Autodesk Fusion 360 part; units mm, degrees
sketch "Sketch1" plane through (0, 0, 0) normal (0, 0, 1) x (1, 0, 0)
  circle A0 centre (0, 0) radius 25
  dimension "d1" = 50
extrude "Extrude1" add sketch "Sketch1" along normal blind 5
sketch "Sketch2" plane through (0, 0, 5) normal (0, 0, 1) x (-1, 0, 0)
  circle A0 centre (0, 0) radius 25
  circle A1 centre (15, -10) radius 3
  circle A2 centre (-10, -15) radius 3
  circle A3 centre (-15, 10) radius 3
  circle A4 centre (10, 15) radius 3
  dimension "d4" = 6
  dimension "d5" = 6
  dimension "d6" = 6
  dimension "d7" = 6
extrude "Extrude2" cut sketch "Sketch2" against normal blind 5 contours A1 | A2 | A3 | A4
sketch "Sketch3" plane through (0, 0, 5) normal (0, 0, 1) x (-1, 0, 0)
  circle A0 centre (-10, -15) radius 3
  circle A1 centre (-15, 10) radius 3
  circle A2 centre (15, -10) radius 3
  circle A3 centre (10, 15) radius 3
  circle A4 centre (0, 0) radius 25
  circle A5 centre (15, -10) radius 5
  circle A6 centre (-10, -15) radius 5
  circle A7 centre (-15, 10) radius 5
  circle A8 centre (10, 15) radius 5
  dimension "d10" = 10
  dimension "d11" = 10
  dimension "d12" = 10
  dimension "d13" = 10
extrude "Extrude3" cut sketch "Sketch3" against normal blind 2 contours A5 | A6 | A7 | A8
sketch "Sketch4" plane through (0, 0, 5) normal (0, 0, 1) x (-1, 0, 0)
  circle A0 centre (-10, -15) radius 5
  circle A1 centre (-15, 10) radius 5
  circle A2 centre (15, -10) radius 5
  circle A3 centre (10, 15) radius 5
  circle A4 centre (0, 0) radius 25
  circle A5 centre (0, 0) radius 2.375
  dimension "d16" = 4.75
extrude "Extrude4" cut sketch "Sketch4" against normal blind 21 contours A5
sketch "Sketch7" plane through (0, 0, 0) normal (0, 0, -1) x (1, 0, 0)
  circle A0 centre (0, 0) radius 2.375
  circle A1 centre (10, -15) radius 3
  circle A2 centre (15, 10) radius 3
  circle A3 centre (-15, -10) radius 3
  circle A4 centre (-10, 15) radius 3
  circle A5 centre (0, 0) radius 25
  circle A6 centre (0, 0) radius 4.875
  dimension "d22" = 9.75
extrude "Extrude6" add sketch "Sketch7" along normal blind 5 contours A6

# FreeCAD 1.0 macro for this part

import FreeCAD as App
import Part
import Sketcher

V = App.Vector
Q = App.Units.Quantity

doc = App.newDocument("Part")
body = doc.addObject("PartDesign::Body", "Body")

# Sketch on XY plane
sketch1 = doc.addObject("Sketcher::SketchObject", "Sketch")
body.addObject(sketch1)
sketch1.AttachmentSupport = (doc.XY_Plane, [""])
sketch1.MapMode = "FlatFace"
sketch1.addGeometry(Part.Circle(V(0, 0, 0), V(0, 0, 1), 25), False)
sketch1.addConstraint([
    Sketcher.Constraint("Coincident", 0, 3, -1, 1),
    Sketcher.Constraint("Diameter", 0, Q("50 mm")),
])
pad1 = doc.addObject("PartDesign::Pad", "Pad")
body.addObject(pad1)
pad1.Profile = sketch1
pad1.Length = 5

# Sketch on XY plane
sketch2 = doc.addObject("Sketcher::SketchObject", "Sketch001")
body.addObject(sketch2)
sketch2.AttachmentSupport = (doc.XY_Plane, [""])
sketch2.MapMode = "FlatFace"
sketch2.AttachmentOffset = App.Placement(V(0, 0, 5), App.Rotation())
sketch2.addGeometry([
    Part.Circle(V(-15, 10, 0), V(0, 0, 1), 3),
    Part.Circle(V(10, 15, 0), V(0, 0, 1), 3),
    Part.Circle(V(15, -10, 0), V(0, 0, 1), 3),
    Part.Circle(V(-10, -15, 0), V(0, 0, 1), 3),
], False)
sketch2.addConstraint([
    Sketcher.Constraint("Equal", 0, 1),
    Sketcher.Constraint("Equal", 1, 2),
    Sketcher.Constraint("Equal", 2, 3),
    Sketcher.Constraint("Symmetric", 0, 3, 2, 3, -1, 1),
    Sketcher.Constraint("Symmetric", 1, 3, 3, 3, -1, 1),
    Sketcher.Constraint("Diameter", 0, Q("6 mm")),
    Sketcher.Constraint("DistanceX", 0, 3, -1, 1, Q("15 mm")),
    Sketcher.Constraint("DistanceY", -1, 1, 0, 3, Q("10 mm")),
    Sketcher.Constraint("DistanceX", -1, 1, 1, 3, Q("10 mm")),
    Sketcher.Constraint("DistanceY", -1, 1, 1, 3, Q("15 mm")),
])
pocket1 = doc.addObject("PartDesign::Pocket", "Pocket")
body.addObject(pocket1)
pocket1.Profile = sketch2
pocket1.Length = 5

# Sketch on XY plane
sketch3 = doc.addObject("Sketcher::SketchObject", "Sketch002")
body.addObject(sketch3)
sketch3.AttachmentSupport = (doc.XY_Plane, [""])
sketch3.MapMode = "FlatFace"
sketch3.AttachmentOffset = App.Placement(V(0, 0, 5), App.Rotation())
sketch3.addGeometry([
    Part.Circle(V(-15, 10, 0), V(0, 0, 1), 5),  # 0
    Part.Circle(V(-15, 10, 0), V(0, 0, 1), 3),  # 1
    Part.Circle(V(10, 15, 0), V(0, 0, 1), 5),  # 2
    Part.Circle(V(10, 15, 0), V(0, 0, 1), 3),  # 3
    Part.Circle(V(15, -10, 0), V(0, 0, 1), 5),  # 4
    Part.Circle(V(15, -10, 0), V(0, 0, 1), 3),  # 5
    Part.Circle(V(-10, -15, 0), V(0, 0, 1), 5),  # 6
    Part.Circle(V(-10, -15, 0), V(0, 0, 1), 3),  # 7
], False)
sketch3.addConstraint([
    Sketcher.Constraint("Coincident", 1, 3, 0, 3),
    Sketcher.Constraint("Coincident", 3, 3, 2, 3),
    Sketcher.Constraint("Coincident", 5, 3, 4, 3),
    Sketcher.Constraint("Coincident", 7, 3, 6, 3),
    Sketcher.Constraint("Equal", 0, 2),
    Sketcher.Constraint("Equal", 1, 3),
    Sketcher.Constraint("Equal", 2, 4),
    Sketcher.Constraint("Equal", 3, 5),
    Sketcher.Constraint("Equal", 4, 6),
    Sketcher.Constraint("Equal", 5, 7),
    Sketcher.Constraint("Symmetric", 0, 3, 4, 3, -1, 1),
    Sketcher.Constraint("Symmetric", 2, 3, 6, 3, -1, 1),
    Sketcher.Constraint("Diameter", 0, Q("10 mm")),
    Sketcher.Constraint("Diameter", 1, Q("6 mm")),
    Sketcher.Constraint("DistanceY", -1, 1, 0, 3, Q("10 mm")),
    Sketcher.Constraint("DistanceX", -1, 1, 2, 3, Q("10 mm")),
    Sketcher.Constraint("DistanceX", 0, 3, -1, 1, Q("15 mm")),
    Sketcher.Constraint("DistanceY", -1, 1, 2, 3, Q("15 mm")),
])
pocket2 = doc.addObject("PartDesign::Pocket", "Pocket001")
body.addObject(pocket2)
pocket2.Profile = sketch3
pocket2.Length = 2

# Sketch on XY plane
sketch4 = doc.addObject("Sketcher::SketchObject", "Sketch003")
body.addObject(sketch4)
sketch4.AttachmentSupport = (doc.XY_Plane, [""])
sketch4.MapMode = "FlatFace"
sketch4.AttachmentOffset = App.Placement(V(0, 0, 5), App.Rotation())
sketch4.addGeometry(Part.Circle(V(0, 0, 0), V(0, 0, 1), 2.4), False)
sketch4.addConstraint([
    Sketcher.Constraint("Coincident", 0, 3, -1, 1),
    Sketcher.Constraint("Diameter", 0, Q("4.75 mm")),
])
pocket3 = doc.addObject("PartDesign::Pocket", "Pocket002")
body.addObject(pocket3)
pocket3.Profile = sketch4
pocket3.Length = 21

# Sketch on XY plane
sketch5 = doc.addObject("Sketcher::SketchObject", "Sketch004")
body.addObject(sketch5)
sketch5.AttachmentSupport = (doc.XY_Plane, [""])
sketch5.MapMode = "FlatFace"
sketch5.addGeometry([
    Part.Circle(V(0, 0, 0), V(0, 0, 1), 4.9),
    Part.Circle(V(0, 0, 0), V(0, 0, 1), 2.4),
], False)
sketch5.addConstraint([
    Sketcher.Constraint("Coincident", 0, 3, -1, 1),
    Sketcher.Constraint("Coincident", 1, 3, -1, 1),
    Sketcher.Constraint("Diameter", 0, Q("9.75 mm")),
    Sketcher.Constraint("Diameter", 1, Q("4.75 mm")),
])
pad2 = doc.addObject("PartDesign::Pad", "Pad001")
body.addObject(pad2)
pad2.Profile = sketch5
pad2.Length = 5
pad2.Reversed = True

doc.recompute()
